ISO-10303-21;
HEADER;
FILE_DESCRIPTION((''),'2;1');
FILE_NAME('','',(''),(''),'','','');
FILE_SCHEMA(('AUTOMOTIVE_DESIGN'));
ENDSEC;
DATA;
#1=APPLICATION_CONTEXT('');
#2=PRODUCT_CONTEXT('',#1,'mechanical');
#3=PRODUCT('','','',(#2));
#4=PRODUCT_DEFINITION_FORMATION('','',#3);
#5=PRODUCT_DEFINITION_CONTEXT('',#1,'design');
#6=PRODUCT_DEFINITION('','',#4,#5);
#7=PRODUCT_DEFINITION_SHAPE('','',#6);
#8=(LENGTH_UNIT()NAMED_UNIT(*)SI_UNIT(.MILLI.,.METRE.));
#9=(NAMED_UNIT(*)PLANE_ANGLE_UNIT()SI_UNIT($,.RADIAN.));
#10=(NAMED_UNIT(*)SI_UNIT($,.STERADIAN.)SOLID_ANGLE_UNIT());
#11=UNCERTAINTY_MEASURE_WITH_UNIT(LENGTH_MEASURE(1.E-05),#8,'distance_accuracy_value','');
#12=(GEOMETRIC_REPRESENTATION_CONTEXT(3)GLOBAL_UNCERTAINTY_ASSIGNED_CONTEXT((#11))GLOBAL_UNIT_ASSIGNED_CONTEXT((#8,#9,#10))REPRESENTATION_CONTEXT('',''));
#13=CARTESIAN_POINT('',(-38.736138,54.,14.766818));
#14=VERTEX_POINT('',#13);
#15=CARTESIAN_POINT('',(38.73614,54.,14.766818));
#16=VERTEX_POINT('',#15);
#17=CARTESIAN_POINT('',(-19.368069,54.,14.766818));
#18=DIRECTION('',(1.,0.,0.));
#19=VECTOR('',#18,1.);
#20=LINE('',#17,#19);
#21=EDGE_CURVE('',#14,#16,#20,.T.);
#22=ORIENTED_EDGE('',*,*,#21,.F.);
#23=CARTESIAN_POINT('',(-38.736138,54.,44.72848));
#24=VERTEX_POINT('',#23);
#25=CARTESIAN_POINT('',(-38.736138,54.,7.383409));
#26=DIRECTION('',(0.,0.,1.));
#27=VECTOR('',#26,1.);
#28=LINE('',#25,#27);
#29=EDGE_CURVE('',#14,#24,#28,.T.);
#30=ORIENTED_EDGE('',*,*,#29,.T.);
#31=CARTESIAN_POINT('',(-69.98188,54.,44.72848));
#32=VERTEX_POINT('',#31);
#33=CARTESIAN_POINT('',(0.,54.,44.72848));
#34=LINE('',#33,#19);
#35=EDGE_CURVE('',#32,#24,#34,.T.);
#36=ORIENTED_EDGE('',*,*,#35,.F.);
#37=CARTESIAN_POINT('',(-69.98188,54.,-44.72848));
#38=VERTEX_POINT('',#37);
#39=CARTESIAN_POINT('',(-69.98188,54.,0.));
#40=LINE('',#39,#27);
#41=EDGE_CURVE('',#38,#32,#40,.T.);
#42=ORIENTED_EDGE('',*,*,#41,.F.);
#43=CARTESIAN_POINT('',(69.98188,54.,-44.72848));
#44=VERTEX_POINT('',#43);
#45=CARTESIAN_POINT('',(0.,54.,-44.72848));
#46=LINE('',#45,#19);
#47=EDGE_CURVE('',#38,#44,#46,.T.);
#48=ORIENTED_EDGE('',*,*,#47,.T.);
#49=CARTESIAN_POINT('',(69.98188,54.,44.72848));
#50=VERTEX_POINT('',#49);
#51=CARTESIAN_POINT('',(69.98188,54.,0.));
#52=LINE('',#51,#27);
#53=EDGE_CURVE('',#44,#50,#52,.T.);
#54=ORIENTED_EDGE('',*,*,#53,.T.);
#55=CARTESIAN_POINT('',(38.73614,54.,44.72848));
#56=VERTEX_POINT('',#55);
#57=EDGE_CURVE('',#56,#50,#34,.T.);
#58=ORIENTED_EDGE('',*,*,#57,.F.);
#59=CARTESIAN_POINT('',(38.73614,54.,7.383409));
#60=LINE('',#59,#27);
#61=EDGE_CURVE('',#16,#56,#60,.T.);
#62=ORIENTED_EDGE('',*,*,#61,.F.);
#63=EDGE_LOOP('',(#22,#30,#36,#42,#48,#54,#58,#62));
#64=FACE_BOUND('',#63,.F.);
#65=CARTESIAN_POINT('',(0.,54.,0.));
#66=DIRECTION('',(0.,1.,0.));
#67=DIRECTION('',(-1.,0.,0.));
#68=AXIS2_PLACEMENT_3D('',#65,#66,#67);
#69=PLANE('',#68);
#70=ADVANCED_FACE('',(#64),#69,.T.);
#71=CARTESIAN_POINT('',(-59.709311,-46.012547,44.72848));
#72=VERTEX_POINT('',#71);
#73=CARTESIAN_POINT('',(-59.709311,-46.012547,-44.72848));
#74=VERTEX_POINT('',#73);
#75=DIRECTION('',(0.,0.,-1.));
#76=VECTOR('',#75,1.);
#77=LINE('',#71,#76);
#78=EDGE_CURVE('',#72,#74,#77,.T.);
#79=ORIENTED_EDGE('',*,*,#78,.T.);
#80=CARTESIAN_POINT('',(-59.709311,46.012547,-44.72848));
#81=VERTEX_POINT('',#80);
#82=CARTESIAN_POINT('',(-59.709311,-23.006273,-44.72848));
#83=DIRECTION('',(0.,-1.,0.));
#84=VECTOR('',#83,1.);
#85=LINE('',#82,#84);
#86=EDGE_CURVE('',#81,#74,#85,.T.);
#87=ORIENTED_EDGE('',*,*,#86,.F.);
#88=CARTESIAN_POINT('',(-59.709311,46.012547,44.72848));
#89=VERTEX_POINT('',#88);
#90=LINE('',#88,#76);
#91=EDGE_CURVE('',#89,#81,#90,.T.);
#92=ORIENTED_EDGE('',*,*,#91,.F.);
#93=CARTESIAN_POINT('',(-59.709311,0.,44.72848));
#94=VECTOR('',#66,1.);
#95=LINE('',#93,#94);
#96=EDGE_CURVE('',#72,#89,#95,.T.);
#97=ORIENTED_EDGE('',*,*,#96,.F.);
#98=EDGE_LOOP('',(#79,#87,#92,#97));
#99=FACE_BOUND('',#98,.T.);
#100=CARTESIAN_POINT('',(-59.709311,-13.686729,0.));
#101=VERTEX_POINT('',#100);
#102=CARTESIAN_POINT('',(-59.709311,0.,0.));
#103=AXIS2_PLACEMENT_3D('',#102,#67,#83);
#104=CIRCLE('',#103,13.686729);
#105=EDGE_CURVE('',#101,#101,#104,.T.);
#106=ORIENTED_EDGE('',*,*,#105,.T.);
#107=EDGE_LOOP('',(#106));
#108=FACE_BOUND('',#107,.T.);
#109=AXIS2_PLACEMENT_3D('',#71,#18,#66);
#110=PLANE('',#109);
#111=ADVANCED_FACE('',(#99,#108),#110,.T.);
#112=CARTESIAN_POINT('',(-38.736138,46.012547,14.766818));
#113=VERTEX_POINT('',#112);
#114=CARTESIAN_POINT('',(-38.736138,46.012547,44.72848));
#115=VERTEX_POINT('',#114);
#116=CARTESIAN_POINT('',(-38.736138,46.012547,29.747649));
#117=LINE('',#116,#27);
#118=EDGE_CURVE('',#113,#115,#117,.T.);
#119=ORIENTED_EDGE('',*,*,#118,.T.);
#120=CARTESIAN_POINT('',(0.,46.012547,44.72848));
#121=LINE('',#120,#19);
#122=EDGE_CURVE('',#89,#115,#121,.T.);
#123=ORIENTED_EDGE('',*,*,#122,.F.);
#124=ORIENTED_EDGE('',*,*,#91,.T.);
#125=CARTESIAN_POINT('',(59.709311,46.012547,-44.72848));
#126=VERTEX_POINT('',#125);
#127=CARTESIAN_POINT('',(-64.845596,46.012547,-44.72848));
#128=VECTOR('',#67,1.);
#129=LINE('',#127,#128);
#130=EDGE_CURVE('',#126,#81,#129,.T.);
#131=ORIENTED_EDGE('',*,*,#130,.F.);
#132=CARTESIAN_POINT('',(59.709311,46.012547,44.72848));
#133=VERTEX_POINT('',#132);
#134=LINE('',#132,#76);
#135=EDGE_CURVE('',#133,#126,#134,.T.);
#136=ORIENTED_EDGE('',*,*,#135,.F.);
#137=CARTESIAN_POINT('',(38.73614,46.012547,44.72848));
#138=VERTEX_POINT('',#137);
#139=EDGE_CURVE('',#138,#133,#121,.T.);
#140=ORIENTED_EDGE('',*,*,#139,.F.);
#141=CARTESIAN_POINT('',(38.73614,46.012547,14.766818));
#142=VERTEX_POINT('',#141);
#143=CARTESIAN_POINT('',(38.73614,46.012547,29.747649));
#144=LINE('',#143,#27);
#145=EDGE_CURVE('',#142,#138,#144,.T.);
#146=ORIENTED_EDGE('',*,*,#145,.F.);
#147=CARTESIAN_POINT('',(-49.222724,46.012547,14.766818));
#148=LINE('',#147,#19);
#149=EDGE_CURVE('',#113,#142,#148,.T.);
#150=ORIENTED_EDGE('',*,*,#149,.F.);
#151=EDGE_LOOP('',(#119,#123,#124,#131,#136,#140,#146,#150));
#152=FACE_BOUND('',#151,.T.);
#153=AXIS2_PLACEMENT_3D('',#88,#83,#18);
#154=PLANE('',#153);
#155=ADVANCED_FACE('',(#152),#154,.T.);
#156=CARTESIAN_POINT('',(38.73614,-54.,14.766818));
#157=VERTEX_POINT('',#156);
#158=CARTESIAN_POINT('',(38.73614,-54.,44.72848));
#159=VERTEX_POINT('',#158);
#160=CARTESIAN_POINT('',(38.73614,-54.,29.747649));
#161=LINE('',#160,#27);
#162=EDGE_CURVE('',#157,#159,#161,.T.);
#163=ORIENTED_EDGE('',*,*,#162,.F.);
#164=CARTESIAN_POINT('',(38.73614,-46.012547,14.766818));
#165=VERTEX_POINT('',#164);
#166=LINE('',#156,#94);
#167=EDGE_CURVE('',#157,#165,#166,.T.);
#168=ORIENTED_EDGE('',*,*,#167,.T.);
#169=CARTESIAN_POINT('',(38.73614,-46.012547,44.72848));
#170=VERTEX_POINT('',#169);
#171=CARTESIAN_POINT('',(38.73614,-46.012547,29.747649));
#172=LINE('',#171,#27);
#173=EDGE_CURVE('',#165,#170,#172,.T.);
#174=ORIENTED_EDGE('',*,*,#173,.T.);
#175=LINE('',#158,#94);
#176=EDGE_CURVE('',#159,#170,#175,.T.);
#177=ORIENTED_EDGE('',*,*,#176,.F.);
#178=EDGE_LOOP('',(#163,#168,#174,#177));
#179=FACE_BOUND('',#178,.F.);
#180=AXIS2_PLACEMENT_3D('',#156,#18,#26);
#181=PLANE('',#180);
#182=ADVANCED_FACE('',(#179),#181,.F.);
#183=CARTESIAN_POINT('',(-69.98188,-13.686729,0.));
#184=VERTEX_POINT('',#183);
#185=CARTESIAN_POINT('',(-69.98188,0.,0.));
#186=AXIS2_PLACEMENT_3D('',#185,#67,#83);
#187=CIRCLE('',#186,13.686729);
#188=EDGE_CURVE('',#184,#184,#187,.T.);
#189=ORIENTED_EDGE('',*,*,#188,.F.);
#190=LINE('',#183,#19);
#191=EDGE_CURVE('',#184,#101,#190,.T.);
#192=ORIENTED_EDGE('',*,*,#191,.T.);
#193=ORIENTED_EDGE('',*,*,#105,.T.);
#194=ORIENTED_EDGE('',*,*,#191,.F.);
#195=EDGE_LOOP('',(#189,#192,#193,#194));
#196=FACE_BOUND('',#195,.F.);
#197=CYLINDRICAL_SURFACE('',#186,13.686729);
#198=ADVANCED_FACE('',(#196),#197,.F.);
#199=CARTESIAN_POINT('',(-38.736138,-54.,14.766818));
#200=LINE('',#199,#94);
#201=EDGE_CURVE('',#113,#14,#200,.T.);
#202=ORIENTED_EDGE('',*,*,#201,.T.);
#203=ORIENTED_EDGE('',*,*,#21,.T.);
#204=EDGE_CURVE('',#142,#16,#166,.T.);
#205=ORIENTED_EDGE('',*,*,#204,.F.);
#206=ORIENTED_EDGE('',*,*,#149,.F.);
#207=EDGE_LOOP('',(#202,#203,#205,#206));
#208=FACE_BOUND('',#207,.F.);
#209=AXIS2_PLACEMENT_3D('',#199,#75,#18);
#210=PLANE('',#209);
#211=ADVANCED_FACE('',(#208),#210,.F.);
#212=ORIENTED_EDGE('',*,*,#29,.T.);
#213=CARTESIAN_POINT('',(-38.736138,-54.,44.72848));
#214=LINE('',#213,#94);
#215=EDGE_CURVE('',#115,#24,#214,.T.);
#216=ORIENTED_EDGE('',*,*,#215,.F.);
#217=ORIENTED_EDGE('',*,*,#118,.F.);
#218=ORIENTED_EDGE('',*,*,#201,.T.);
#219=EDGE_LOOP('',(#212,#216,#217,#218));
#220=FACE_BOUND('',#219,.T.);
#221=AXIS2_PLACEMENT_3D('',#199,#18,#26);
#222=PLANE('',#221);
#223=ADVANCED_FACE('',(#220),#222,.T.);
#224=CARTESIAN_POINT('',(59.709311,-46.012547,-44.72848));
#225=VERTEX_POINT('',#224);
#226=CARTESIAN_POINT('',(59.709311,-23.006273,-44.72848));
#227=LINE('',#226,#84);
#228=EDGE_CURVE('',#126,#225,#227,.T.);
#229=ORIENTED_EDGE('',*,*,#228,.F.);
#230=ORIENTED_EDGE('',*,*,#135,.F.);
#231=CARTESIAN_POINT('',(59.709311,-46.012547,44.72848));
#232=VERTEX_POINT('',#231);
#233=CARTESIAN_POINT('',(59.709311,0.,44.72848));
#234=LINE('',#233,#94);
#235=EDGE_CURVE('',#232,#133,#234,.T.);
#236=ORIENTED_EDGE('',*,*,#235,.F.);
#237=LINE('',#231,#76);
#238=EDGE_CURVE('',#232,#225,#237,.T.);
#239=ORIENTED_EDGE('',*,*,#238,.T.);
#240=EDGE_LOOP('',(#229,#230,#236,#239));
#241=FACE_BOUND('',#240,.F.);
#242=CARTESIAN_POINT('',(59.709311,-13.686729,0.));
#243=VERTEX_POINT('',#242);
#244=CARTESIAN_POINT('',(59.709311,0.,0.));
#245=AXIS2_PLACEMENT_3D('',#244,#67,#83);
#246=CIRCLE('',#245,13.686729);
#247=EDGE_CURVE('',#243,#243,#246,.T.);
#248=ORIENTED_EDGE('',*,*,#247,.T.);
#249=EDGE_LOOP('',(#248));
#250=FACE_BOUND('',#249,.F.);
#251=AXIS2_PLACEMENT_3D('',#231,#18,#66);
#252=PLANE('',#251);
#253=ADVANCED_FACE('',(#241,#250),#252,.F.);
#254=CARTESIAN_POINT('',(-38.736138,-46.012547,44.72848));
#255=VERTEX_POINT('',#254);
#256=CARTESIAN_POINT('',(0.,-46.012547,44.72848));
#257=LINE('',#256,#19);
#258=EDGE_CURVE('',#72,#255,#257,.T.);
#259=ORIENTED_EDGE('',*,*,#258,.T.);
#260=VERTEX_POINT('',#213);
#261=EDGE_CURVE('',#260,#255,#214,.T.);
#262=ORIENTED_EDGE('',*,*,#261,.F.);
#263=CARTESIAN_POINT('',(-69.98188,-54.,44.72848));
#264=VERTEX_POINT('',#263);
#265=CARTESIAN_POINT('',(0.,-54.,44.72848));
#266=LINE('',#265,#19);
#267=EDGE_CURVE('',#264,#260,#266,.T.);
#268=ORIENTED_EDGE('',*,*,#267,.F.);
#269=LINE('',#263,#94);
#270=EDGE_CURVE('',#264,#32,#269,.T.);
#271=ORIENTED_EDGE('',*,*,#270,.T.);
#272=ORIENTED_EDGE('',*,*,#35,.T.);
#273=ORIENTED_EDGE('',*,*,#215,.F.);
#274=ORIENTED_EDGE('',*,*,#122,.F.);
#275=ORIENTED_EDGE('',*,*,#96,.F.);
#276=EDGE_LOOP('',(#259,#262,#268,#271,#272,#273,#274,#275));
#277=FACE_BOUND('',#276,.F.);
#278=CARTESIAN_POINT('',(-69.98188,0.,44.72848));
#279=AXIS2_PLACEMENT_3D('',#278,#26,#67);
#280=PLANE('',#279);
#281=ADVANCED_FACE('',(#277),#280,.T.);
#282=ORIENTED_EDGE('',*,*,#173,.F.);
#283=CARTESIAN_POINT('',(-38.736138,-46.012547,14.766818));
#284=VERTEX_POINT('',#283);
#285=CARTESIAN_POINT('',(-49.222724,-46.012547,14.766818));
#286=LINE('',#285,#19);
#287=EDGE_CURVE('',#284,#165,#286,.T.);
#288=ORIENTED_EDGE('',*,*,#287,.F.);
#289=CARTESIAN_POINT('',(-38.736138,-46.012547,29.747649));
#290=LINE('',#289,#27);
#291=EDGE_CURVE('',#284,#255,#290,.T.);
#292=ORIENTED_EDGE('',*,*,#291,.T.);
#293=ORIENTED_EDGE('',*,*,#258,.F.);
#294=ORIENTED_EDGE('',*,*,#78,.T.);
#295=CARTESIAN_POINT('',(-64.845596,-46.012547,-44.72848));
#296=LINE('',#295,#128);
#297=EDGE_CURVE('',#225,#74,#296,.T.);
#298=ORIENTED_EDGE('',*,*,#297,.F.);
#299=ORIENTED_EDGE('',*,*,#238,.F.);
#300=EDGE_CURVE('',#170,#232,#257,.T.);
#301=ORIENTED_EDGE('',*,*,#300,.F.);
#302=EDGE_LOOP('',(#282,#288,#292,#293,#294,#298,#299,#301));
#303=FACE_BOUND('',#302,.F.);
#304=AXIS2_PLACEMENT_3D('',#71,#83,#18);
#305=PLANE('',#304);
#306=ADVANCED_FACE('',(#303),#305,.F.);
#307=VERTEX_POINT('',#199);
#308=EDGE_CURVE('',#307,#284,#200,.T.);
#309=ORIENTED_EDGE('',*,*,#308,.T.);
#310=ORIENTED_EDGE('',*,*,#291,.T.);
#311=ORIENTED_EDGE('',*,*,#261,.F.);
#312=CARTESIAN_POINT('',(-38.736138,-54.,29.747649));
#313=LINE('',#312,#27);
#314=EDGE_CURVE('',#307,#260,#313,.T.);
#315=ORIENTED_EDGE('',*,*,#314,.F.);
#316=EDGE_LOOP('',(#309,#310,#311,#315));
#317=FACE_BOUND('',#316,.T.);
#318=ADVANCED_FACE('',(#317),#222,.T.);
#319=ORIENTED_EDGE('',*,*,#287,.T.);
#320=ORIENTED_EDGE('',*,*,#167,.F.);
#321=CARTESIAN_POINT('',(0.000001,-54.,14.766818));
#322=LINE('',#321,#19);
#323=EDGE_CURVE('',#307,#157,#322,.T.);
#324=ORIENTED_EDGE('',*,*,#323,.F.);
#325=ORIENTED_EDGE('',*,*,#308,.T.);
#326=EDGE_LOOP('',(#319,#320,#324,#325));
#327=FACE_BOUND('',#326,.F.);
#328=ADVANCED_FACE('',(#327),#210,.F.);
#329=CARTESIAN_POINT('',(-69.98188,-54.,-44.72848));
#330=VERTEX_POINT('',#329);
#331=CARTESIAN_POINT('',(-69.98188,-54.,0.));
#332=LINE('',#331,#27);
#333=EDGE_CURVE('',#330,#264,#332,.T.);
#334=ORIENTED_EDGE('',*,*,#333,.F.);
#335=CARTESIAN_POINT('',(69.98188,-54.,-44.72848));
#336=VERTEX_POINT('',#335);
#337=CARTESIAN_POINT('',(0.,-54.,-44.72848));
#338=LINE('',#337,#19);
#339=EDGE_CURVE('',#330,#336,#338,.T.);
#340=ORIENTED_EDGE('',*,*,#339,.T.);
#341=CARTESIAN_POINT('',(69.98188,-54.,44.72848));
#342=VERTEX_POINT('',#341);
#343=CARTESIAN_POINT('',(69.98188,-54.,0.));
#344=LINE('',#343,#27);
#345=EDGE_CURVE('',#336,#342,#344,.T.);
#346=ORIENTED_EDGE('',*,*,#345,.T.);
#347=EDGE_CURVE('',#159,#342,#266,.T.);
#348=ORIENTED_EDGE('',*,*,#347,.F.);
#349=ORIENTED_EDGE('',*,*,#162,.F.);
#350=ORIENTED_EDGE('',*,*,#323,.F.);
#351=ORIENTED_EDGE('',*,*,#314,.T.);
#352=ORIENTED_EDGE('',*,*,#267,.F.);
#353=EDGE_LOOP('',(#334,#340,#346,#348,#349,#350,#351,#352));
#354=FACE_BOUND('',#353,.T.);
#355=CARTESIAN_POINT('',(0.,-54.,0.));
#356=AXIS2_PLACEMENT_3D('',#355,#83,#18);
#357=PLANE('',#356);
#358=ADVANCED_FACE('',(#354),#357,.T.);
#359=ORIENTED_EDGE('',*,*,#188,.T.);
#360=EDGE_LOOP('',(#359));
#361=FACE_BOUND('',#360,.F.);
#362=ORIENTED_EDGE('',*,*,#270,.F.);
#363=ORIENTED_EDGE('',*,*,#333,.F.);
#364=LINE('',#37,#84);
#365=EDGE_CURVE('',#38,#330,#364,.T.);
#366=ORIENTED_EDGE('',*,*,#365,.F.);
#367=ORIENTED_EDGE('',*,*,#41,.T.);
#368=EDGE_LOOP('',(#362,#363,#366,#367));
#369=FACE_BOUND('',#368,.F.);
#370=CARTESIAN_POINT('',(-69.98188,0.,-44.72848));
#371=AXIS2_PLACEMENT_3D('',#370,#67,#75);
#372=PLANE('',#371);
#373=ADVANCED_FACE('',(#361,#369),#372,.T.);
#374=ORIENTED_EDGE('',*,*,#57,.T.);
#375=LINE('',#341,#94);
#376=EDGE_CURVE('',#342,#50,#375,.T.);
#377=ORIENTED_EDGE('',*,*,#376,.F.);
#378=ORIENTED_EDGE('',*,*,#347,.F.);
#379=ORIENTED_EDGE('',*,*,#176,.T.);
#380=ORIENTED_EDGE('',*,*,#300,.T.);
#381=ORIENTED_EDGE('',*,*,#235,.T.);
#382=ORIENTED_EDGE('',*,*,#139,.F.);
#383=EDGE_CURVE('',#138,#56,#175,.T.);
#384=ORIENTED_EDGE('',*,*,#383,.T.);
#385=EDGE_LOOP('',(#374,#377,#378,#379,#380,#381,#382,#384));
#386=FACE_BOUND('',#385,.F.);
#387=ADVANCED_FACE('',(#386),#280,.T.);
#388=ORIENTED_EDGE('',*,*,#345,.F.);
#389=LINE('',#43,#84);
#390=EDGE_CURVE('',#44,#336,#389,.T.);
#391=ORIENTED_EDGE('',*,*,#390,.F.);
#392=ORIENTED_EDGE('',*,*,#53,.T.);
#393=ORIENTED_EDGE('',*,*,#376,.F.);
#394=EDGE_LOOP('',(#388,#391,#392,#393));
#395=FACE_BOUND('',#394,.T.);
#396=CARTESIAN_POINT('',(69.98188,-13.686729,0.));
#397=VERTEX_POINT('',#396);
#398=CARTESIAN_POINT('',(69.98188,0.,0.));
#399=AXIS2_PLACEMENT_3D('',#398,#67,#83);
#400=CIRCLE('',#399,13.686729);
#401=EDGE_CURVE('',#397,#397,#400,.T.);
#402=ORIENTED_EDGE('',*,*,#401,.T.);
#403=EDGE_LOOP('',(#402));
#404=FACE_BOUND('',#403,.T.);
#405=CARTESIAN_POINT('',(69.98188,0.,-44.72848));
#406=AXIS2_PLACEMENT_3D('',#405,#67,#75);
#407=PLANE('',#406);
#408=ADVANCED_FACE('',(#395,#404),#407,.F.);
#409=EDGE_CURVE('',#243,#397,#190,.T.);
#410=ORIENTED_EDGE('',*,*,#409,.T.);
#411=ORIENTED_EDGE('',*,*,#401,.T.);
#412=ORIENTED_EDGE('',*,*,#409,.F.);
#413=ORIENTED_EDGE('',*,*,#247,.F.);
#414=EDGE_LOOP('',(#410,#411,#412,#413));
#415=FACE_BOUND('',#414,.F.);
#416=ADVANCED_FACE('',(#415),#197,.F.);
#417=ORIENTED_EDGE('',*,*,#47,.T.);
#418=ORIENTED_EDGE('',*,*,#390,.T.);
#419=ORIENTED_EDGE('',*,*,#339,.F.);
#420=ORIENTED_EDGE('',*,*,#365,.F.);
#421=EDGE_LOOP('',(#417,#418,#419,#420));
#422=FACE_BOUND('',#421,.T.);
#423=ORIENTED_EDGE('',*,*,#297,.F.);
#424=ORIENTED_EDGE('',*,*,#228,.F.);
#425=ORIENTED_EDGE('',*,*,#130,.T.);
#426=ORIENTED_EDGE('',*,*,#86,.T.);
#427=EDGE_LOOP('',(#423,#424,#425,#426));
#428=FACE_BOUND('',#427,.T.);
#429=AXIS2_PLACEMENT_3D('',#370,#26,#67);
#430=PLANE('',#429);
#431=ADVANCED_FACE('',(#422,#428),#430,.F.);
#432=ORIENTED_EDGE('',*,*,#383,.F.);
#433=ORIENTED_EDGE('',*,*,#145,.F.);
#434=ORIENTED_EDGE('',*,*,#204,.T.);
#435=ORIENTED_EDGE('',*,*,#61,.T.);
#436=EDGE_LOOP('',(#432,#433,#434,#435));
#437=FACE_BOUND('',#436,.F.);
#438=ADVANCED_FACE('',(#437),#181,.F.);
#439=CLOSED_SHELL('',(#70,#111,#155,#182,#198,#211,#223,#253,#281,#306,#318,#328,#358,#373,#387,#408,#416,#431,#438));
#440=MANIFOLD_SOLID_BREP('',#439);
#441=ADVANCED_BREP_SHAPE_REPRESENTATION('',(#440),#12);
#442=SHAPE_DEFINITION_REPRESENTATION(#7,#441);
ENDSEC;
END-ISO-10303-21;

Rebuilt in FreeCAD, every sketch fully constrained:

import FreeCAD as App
import Part
import Sketcher

V = App.Vector

doc = App.newDocument("Part")
body = doc.addObject("PartDesign::Body", "Body")

# Sketch on XZ plane
sketch1 = body.newObject("Sketcher::SketchObject", "Sketch")
sketch1.AttachmentSupport = (doc.getObject("XZ_Plane"), [""])
sketch1.MapMode = "FlatFace"
sketch1.addGeometry(Part.LineSegment(V(-70, 45, 0), V(-70, -45, 0)), False)
sketch1.addGeometry(Part.LineSegment(V(-70, -45, 0), V(70, -45, 0)), False)
sketch1.addGeometry(Part.LineSegment(V(70, -45, 0), V(70, 45, 0)), False)
sketch1.addGeometry(Part.LineSegment(V(70, 45, 0), V(-70, 45, 0)), False)
sketch1.addConstraint(Sketcher.Constraint("Coincident", 0, 2, 1, 1))
sketch1.addConstraint(Sketcher.Constraint("Coincident", 1, 2, 2, 1))
sketch1.addConstraint(Sketcher.Constraint("Coincident", 2, 2, 3, 1))
sketch1.addConstraint(Sketcher.Constraint("Coincident", 3, 2, 0, 1))
sketch1.addConstraint(Sketcher.Constraint("Vertical", 0))
sketch1.addConstraint(Sketcher.Constraint("Horizontal", 1))
sketch1.addConstraint(Sketcher.Constraint("Vertical", 2))
sketch1.addConstraint(Sketcher.Constraint("Horizontal", 3))
sketch1.addConstraint(Sketcher.Constraint("Symmetric", 0, 2, 2, 2, -1, 1))
sketch1.addConstraint(Sketcher.Constraint("DistanceX", 1, 1, 1, 2, 139.96376))
sketch1.addConstraint(Sketcher.Constraint("DistanceY", 0, 2, 0, 1, 89.45696))
pad1 = body.newObject("PartDesign::Pad", "Pad")
pad1.Profile = sketch1
pad1.Length = 54
body2 = doc.addObject("PartDesign::Body", "Body001")
doc.recompute()

body2.BaseFeature = body
doc.recompute()

mirroring = doc.addObject("Part::Mirroring", "Mirroring")
mirroring.Source = body
mirroring.Base = V(0, 0, 0)
mirroring.Normal = V(0, 1, 0)
body3 = doc.addObject("PartDesign::Body", "Body002")
body3.BaseFeature = mirroring
boolean = body2.newObject("PartDesign::Boolean", "Boolean")
boolean.Type = "Fuse"
boolean.addObjects([body3])
doc.recompute()

# Sketch on XY plane
sketch2 = body2.newObject("Sketcher::SketchObject", "Sketch001")
sketch2.AttachmentSupport = (doc.getObject("XY_Plane001"), [""])
sketch2.MapMode = "FlatFace"
sketch2.AttachmentOffset = App.Placement(V(0, 0, 44.72848), App.Rotation())
sketch2.addGeometry(Part.LineSegment(V(-60, 46, 0), V(-60, -46, 0)), False)
sketch2.addGeometry(Part.LineSegment(V(-60, -46, 0), V(60, -46, 0)), False)
sketch2.addGeometry(Part.LineSegment(V(60, -46, 0), V(60, 46, 0)), False)
sketch2.addGeometry(Part.LineSegment(V(60, 46, 0), V(-60, 46, 0)), False)
sketch2.addConstraint(Sketcher.Constraint("Coincident", 0, 2, 1, 1))
sketch2.addConstraint(Sketcher.Constraint("Coincident", 1, 2, 2, 1))
sketch2.addConstraint(Sketcher.Constraint("Coincident", 2, 2, 3, 1))
sketch2.addConstraint(Sketcher.Constraint("Coincident", 3, 2, 0, 1))
sketch2.addConstraint(Sketcher.Constraint("Vertical", 0))
sketch2.addConstraint(Sketcher.Constraint("Horizontal", 1))
sketch2.addConstraint(Sketcher.Constraint("Vertical", 2))
sketch2.addConstraint(Sketcher.Constraint("Horizontal", 3))
sketch2.addConstraint(Sketcher.Constraint("Symmetric", 0, 2, 2, 2, -1, 1))
sketch2.addConstraint(Sketcher.Constraint("DistanceX", 1, 1, 1, 2, 119.418622))
sketch2.addConstraint(Sketcher.Constraint("DistanceY", 0, 2, 0, 1, 92.025094))
pocket1 = body2.newObject("PartDesign::Pocket", "Pocket")
pocket1.Profile = sketch2
pocket1.Length = 98

# Sketch on XZ plane
sketch3 = body2.newObject("Sketcher::SketchObject", "Sketch002")
sketch3.AttachmentSupport = (doc.getObject("XZ_Plane001"), [""])
sketch3.MapMode = "FlatFace"
sketch3.AttachmentOffset = App.Placement(V(0, 0, 54), App.Rotation())
sketch3.addGeometry(Part.LineSegment(V(-39, 45, 0), V(-39, 15, 0)), False)
sketch3.addGeometry(Part.LineSegment(V(-39, 15, 0), V(39, 15, 0)), False)
sketch3.addGeometry(Part.LineSegment(V(39, 15, 0), V(39, 45, 0)), False)
sketch3.addGeometry(Part.LineSegment(V(39, 45, 0), V(-39, 45, 0)), False)
sketch3.addConstraint(Sketcher.Constraint("Coincident", 0, 2, 1, 1))
sketch3.addConstraint(Sketcher.Constraint("Coincident", 1, 2, 2, 1))
sketch3.addConstraint(Sketcher.Constraint("Coincident", 2, 2, 3, 1))
sketch3.addConstraint(Sketcher.Constraint("Coincident", 3, 2, 0, 1))
sketch3.addConstraint(Sketcher.Constraint("Vertical", 0))
sketch3.addConstraint(Sketcher.Constraint("Horizontal", 1))
sketch3.addConstraint(Sketcher.Constraint("Vertical", 2))
sketch3.addConstraint(Sketcher.Constraint("Horizontal", 3))
sketch3.addConstraint(Sketcher.Constraint("DistanceY", 0, 2, 0, 1, 29.961662))
sketch3.addConstraint(Sketcher.Constraint("DistanceX", 1, 1, 1, 2, 77.472278))
sketch3.addConstraint(Sketcher.Constraint("DistanceY", -1, 1, 0, 2, 14.766818))
sketch3.addConstraint(Sketcher.Constraint("DistanceX", -1, 1, 1, 2, 38.73614))
pocket2 = body2.newObject("PartDesign::Pocket", "Pocket001")
pocket2.Profile = sketch3
pocket2.Length = 195

# Sketch on YZ plane
sketch4 = body2.newObject("Sketcher::SketchObject", "Sketch003")
sketch4.AttachmentSupport = (doc.getObject("YZ_Plane001"), [""])
sketch4.MapMode = "FlatFace"
sketch4.AttachmentOffset = App.Placement(V(0, 0, -69.98188), App.Rotation())
sketch4.addGeometry(Part.Circle(V(0, 0, 0), V(0, 0, 1), 14), False)
sketch4.addConstraint(Sketcher.Constraint("Coincident", 0, 3, -1, 1))
sketch4.addConstraint(Sketcher.Constraint("Diameter", 0, 27.373458))
pocket3 = body2.newObject("PartDesign::Pocket", "Pocket002")
pocket3.Profile = sketch4
pocket3.Length = 202
pocket3.Reversed = True
mirroring.Visibility = False

doc.recompute()
